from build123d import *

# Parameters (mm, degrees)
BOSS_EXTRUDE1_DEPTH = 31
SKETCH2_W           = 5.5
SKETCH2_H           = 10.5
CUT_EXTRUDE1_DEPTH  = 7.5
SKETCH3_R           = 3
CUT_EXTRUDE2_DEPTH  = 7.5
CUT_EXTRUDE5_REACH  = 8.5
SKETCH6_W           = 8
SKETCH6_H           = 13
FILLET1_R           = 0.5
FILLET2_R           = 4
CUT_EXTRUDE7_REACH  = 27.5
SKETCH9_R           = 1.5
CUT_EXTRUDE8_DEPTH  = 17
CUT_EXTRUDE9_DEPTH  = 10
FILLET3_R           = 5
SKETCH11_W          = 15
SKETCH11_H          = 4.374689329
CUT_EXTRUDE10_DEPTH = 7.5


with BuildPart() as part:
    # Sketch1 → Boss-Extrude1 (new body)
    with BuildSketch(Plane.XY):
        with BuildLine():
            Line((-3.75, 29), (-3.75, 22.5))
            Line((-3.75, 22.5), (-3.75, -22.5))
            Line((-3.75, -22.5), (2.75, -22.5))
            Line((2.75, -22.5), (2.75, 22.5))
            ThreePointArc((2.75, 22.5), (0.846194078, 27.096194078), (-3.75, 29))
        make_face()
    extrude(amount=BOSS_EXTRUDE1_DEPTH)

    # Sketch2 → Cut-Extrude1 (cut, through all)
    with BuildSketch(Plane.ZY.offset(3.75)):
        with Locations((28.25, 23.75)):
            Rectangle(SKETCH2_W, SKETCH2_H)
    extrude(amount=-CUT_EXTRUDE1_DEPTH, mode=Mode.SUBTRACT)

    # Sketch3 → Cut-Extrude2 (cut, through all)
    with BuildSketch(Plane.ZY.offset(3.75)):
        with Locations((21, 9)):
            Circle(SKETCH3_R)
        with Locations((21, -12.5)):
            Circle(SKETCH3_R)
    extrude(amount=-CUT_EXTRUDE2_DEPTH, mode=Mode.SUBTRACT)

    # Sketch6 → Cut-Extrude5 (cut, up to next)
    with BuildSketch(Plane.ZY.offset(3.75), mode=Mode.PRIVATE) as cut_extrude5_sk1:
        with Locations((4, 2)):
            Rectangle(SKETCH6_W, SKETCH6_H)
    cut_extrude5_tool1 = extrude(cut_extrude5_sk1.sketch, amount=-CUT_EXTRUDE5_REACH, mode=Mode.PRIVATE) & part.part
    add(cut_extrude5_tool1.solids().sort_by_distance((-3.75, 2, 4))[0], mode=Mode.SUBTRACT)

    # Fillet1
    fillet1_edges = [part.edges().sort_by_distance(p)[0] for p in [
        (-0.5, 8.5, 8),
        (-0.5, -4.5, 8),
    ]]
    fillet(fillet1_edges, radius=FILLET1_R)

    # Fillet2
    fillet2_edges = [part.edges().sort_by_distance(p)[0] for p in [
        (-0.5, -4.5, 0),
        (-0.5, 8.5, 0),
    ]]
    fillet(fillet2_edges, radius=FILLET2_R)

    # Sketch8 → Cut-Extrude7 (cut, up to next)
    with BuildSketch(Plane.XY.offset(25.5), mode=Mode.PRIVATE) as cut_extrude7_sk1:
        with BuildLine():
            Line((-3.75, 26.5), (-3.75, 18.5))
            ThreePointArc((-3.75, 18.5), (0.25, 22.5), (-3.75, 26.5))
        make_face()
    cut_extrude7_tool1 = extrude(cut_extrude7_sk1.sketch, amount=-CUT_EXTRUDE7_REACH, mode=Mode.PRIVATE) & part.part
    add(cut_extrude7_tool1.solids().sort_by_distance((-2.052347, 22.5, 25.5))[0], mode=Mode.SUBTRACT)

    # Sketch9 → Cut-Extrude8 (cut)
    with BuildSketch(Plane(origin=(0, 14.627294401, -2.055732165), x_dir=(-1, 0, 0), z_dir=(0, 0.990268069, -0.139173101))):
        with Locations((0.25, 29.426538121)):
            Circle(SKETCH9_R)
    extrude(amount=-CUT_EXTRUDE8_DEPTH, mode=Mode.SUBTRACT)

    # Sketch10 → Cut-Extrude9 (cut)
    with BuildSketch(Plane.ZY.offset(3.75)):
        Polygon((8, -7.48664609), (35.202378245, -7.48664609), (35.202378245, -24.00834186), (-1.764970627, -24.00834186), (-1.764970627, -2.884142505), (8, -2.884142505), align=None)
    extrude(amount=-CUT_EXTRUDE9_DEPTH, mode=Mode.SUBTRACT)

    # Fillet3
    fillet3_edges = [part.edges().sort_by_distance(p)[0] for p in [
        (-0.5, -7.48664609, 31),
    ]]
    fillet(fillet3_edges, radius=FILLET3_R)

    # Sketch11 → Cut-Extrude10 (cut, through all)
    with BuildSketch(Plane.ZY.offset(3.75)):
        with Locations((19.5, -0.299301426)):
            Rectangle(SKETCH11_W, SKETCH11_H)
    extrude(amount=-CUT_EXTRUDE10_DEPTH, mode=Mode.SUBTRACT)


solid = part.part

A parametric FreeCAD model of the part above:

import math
import FreeCAD as App
import Part
import Sketcher
Q = App.Units.Quantity


def edges_at(feature, points):
    """Names of the edges that pass closest to the given points."""
    edges = feature.Shape.Edges
    near = lambda p: min(range(len(edges)), key=lambda i: edges[i].distToShape(Part.Vertex(*p))[0])
    return sorted({f"Edge{near(p) + 1}" for p in points})

doc = App.newDocument("Part")
body = doc.addObject("PartDesign::Body", "Body")

sketch1 = body.newObject("Sketcher::SketchObject", "Sketch")
sketch1.AttachmentSupport = (doc.getObject("XY_Plane"), [""])
sketch1.MapMode = "FlatFace"
sketch1.addGeometry(Part.LineSegment(App.Vector(-3.75, 29, 0), App.Vector(-3.75, -22.5, 0)), False)
sketch1.addGeometry(Part.LineSegment(App.Vector(-3.75, -22.5, 0), App.Vector(2.75, -22.5, 0)), False)
sketch1.addGeometry(Part.LineSegment(App.Vector(2.75, -22.5, 0), App.Vector(2.75, 22.5, 0)), False)
sketch1.addGeometry(Part.ArcOfCircle(Part.Circle(App.Vector(-3.75, 22.5, 0), App.Vector(0, 0, 1), 6.5), math.radians(0), math.radians(90)), False)
sketch1.addConstraint(Sketcher.Constraint("Coincident", 0, 2, 1, 1))
sketch1.addConstraint(Sketcher.Constraint("Coincident", 1, 2, 2, 1))
sketch1.addConstraint(Sketcher.Constraint("Tangent", 2, 2, 3, 1))
sketch1.addConstraint(Sketcher.Constraint("Coincident", 3, 2, 0, 1))
sketch1.addConstraint(Sketcher.Constraint("Vertical", 0))
sketch1.addConstraint(Sketcher.Constraint("Horizontal", 1))
sketch1.addConstraint(Sketcher.Constraint("Vertical", 2))
sketch1.addConstraint(Sketcher.Constraint("Vertical", 3, 3, 0, 2))
sketch1.addConstraint(Sketcher.Constraint("Radius", 3, Q("6.5 mm")))
sketch1.addConstraint(Sketcher.Constraint("DistanceY", 2, 1, 2, 2, Q("45 mm")))
sketch1.addConstraint(Sketcher.Constraint("DistanceY", -1, 1, 3, 2, Q("29 mm")))
sketch1.addConstraint(Sketcher.Constraint("DistanceX", 3, 3, -1, 1, Q("3.75 mm")))
pad1 = body.newObject("PartDesign::Pad", "Pad")
pad1.Profile = sketch1
pad1.Length = 31

sketch2 = body.newObject("Sketcher::SketchObject", "Sketch001")
sketch2.AttachmentSupport = (doc.getObject("YZ_Plane"), [""])
sketch2.MapMode = "FlatFace"
sketch2.AttachmentOffset = App.Placement(App.Vector(0, 0, -3.75), App.Rotation())
sketch2.addGeometry(Part.LineSegment(App.Vector(29, 25.5, 0), App.Vector(18.5, 25.5, 0)), False)
sketch2.addGeometry(Part.LineSegment(App.Vector(18.5, 25.5, 0), App.Vector(18.5, 31, 0)), False)
sketch2.addGeometry(Part.LineSegment(App.Vector(18.5, 31, 0), App.Vector(29, 31, 0)), False)
sketch2.addGeometry(Part.LineSegment(App.Vector(29, 31, 0), App.Vector(29, 25.5, 0)), False)
sketch2.addConstraint(Sketcher.Constraint("Coincident", 0, 2, 1, 1))
sketch2.addConstraint(Sketcher.Constraint("Coincident", 1, 2, 2, 1))
sketch2.addConstraint(Sketcher.Constraint("Coincident", 2, 2, 3, 1))
sketch2.addConstraint(Sketcher.Constraint("Coincident", 3, 2, 0, 1))
sketch2.addConstraint(Sketcher.Constraint("Horizontal", 0))
sketch2.addConstraint(Sketcher.Constraint("Vertical", 1))
sketch2.addConstraint(Sketcher.Constraint("Horizontal", 2))
sketch2.addConstraint(Sketcher.Constraint("Vertical", 3))
sketch2.addConstraint(Sketcher.Constraint("DistanceX", 0, 2, 0, 1, Q("10.5 mm")))
sketch2.addConstraint(Sketcher.Constraint("DistanceY", 1, 1, 1, 2, Q("5.5 mm")))
sketch2.addConstraint(Sketcher.Constraint("DistanceY", -1, 1, 1, 2, Q("31 mm")))
sketch2.addConstraint(Sketcher.Constraint("DistanceX", -1, 1, 2, 2, Q("29 mm")))
pocket1 = body.newObject("PartDesign::Pocket", "Pocket")
pocket1.Profile = sketch2
pocket1.Type = "ThroughAll"
pocket1.Reversed = True

sketch3 = body.newObject("Sketcher::SketchObject", "Sketch002")
sketch3.AttachmentSupport = (doc.getObject("YZ_Plane"), [""])
sketch3.MapMode = "FlatFace"
sketch3.AttachmentOffset = App.Placement(App.Vector(0, 0, -3.75), App.Rotation())
sketch3.addGeometry(Part.Circle(App.Vector(9, 21, 0), App.Vector(0, 0, 1), 3), False)
sketch3.addGeometry(Part.Circle(App.Vector(-12.5, 21, 0), App.Vector(0, 0, 1), 3), False)
sketch3.addConstraint(Sketcher.Constraint("Equal", 0, 1))
sketch3.addConstraint(Sketcher.Constraint("Horizontal", 0, 3, 1, 3))
sketch3.addConstraint(Sketcher.Constraint("Diameter", 0, Q("6 mm")))
sketch3.addConstraint(Sketcher.Constraint("DistanceX", -1, 1, 0, 3, Q("9 mm")))
sketch3.addConstraint(Sketcher.Constraint("DistanceY", -1, 1, 0, 3, Q("21 mm")))
sketch3.addConstraint(Sketcher.Constraint("DistanceX", 1, 3, -1, 1, Q("12.5 mm")))
pocket2 = body.newObject("PartDesign::Pocket", "Pocket001")
pocket2.Profile = sketch3
pocket2.Type = "ThroughAll"
pocket2.Reversed = True

sketch4 = body.newObject("Sketcher::SketchObject", "Sketch003")
sketch4.AttachmentSupport = (doc.getObject("YZ_Plane"), [""])
sketch4.MapMode = "FlatFace"
sketch4.AttachmentOffset = App.Placement(App.Vector(0, 0, -3.75), App.Rotation())
sketch4.addGeometry(Part.LineSegment(App.Vector(8.5, 0, 0), App.Vector(-4.5, 0, 0)), False)
sketch4.addGeometry(Part.LineSegment(App.Vector(-4.5, 0, 0), App.Vector(-4.5, 8, 0)), False)
sketch4.addGeometry(Part.LineSegment(App.Vector(-4.5, 8, 0), App.Vector(8.5, 8, 0)), False)
sketch4.addGeometry(Part.LineSegment(App.Vector(8.5, 8, 0), App.Vector(8.5, 0, 0)), False)
sketch4.addConstraint(Sketcher.Constraint("Coincident", 0, 2, 1, 1))
sketch4.addConstraint(Sketcher.Constraint("Coincident", 1, 2, 2, 1))
sketch4.addConstraint(Sketcher.Constraint("Coincident", 2, 2, 3, 1))
sketch4.addConstraint(Sketcher.Constraint("Coincident", 3, 2, 0, 1))
sketch4.addConstraint(Sketcher.Constraint("Horizontal", 0))
sketch4.addConstraint(Sketcher.Constraint("Vertical", 1))
sketch4.addConstraint(Sketcher.Constraint("Horizontal", 2))
sketch4.addConstraint(Sketcher.Constraint("Vertical", 3))
sketch4.addConstraint(Sketcher.Constraint("PointOnObject", 0, 2, -1))
sketch4.addConstraint(Sketcher.Constraint("DistanceX", 0, 2, 0, 1, Q("13 mm")))
sketch4.addConstraint(Sketcher.Constraint("DistanceY", 1, 1, 1, 2, Q("8 mm")))
sketch4.addConstraint(Sketcher.Constraint("DistanceX", 0, 2, -1, 1, Q("4.5 mm")))
pocket3 = body.newObject("PartDesign::Pocket", "Pocket002")
pocket3.Profile = sketch4
pocket3.Type = "UpToFirst"
pocket3.Reversed = True
doc.recompute()

fillet = body.newObject("PartDesign::Fillet", "Fillet")
fillet.Base = (pocket3, edges_at(pocket3, [(-0.5, 8.5, 8), (-0.5, -4.5, 8)]))
fillet.Radius = 0.5
doc.recompute()

fillet2 = body.newObject("PartDesign::Fillet", "Fillet001")
fillet2.Base = (fillet, edges_at(fillet, [(-0.5, -4.5, 0), (-0.5, 8.5, 0)]))
fillet2.Radius = 4

sketch5 = body.newObject("Sketcher::SketchObject", "Sketch004")
sketch5.AttachmentSupport = (doc.getObject("XY_Plane"), [""])
sketch5.MapMode = "FlatFace"
sketch5.AttachmentOffset = App.Placement(App.Vector(0, 0, 25.5), App.Rotation())
sketch5.addGeometry(Part.LineSegment(App.Vector(-3.75, 26.5, 0), App.Vector(-3.75, 18.5, 0)), False)
sketch5.addGeometry(Part.ArcOfCircle(Part.Circle(App.Vector(-3.75, 22.5, 0), App.Vector(0, 0, 1), 4), math.radians(-90), math.radians(90)), False)
sketch5.addConstraint(Sketcher.Constraint("Coincident", 0, 1, 1, 2))
sketch5.addConstraint(Sketcher.Constraint("Coincident", 1, 1, 0, 2))
sketch5.addConstraint(Sketcher.Constraint("Vertical", 0))
sketch5.addConstraint(Sketcher.Constraint("Vertical", 1, 3, 0, 1))
sketch5.addConstraint(Sketcher.Constraint("Radius", 1, Q("4 mm")))
sketch5.addConstraint(Sketcher.Constraint("DistanceY", -1, 1, 1, 3, Q("22.5 mm")))
sketch5.addConstraint(Sketcher.Constraint("DistanceX", 1, 3, -1, 1, Q("3.75 mm")))
pocket4 = body.newObject("PartDesign::Pocket", "Pocket003")
pocket4.Profile = sketch5
pocket4.Type = "UpToFirst"

sketch6 = body.newObject("Sketcher::SketchObject", "Sketch005")
sketch6.Placement = App.Placement(App.Vector(0, 14.627294, -2.055732), App.Rotation(App.Vector(-1, 0, 0), App.Vector(0, 0.139173101, 0.990268069), App.Vector(0, 0.990268069, -0.139173101), "ZXY"))
sketch6.addGeometry(Part.Circle(App.Vector(0.25, 29.426538, 0), App.Vector(0, 0, 1), 1.5), False)
sketch6.addConstraint(Sketcher.Constraint("Diameter", 0, Q("3 mm")))
sketch6.addConstraint(Sketcher.Constraint("DistanceX", -1, 1, 0, 3, Q("0.25 mm")))
sketch6.addConstraint(Sketcher.Constraint("DistanceY", -1, 1, 0, 3, Q("29.426538 mm")))
pocket5 = body.newObject("PartDesign::Pocket", "Pocket004")
pocket5.Profile = sketch6
pocket5.Length = 17

sketch7 = body.newObject("Sketcher::SketchObject", "Sketch006")
sketch7.AttachmentSupport = (doc.getObject("YZ_Plane"), [""])
sketch7.MapMode = "FlatFace"
sketch7.AttachmentOffset = App.Placement(App.Vector(0, 0, -3.75), App.Rotation())
sketch7.addGeometry(Part.LineSegment(App.Vector(-7.486646, 35.202378, 0), App.Vector(-7.486646, 8, 0)), False)
sketch7.addGeometry(Part.LineSegment(App.Vector(-7.486646, 8, 0), App.Vector(-2.884143, 8, 0)), False)
sketch7.addGeometry(Part.LineSegment(App.Vector(-2.884143, 8, 0), App.Vector(-2.884143, -1.764971, 0)), False)
sketch7.addGeometry(Part.LineSegment(App.Vector(-2.884143, -1.764971, 0), App.Vector(-24.008342, -1.764971, 0)), False)
sketch7.addGeometry(Part.LineSegment(App.Vector(-24.008342, -1.764971, 0), App.Vector(-24.008342, 35.202378, 0)), False)
sketch7.addGeometry(Part.LineSegment(App.Vector(-24.008342, 35.202378, 0), App.Vector(-7.486646, 35.202378, 0)), False)
sketch7.addConstraint(Sketcher.Constraint("Coincident", 0, 2, 1, 1))
sketch7.addConstraint(Sketcher.Constraint("Coincident", 1, 2, 2, 1))
sketch7.addConstraint(Sketcher.Constraint("Coincident", 2, 2, 3, 1))
sketch7.addConstraint(Sketcher.Constraint("Coincident", 3, 2, 4, 1))
sketch7.addConstraint(Sketcher.Constraint("Coincident", 4, 2, 5, 1))
sketch7.addConstraint(Sketcher.Constraint("Coincident", 5, 2, 0, 1))
sketch7.addConstraint(Sketcher.Constraint("Vertical", 0))
sketch7.addConstraint(Sketcher.Constraint("Horizontal", 1))
sketch7.addConstraint(Sketcher.Constraint("Vertical", 2))
sketch7.addConstraint(Sketcher.Constraint("Horizontal", 3))
sketch7.addConstraint(Sketcher.Constraint("Vertical", 4))
sketch7.addConstraint(Sketcher.Constraint("Horizontal", 5))
sketch7.addConstraint(Sketcher.Constraint("DistanceY", -1, 1, 0, 2, Q("8 mm")))
sketch7.addConstraint(Sketcher.Constraint("DistanceX", 3, 2, 3, 1, Q("21.124199 mm")))
sketch7.addConstraint(Sketcher.Constraint("DistanceY", 0, 2, 0, 1, Q("27.202378 mm")))
sketch7.addConstraint(Sketcher.Constraint("DistanceY", 2, 2, 2, 1, Q("9.764971 mm")))
sketch7.addConstraint(Sketcher.Constraint("DistanceX", 1, 1, 1, 2, Q("4.602504 mm")))
sketch7.addConstraint(Sketcher.Constraint("DistanceX", 3, 2, -1, 1, Q("24.008342 mm")))
pocket6 = body.newObject("PartDesign::Pocket", "Pocket005")
pocket6.Profile = sketch7
pocket6.Length = 10
pocket6.Reversed = True
doc.recompute()

fillet3 = body.newObject("PartDesign::Fillet", "Fillet002")
fillet3.Base = (pocket6, edges_at(pocket6, [(-0.5, -7.487, 31)]))
fillet3.Radius = 5

sketch8 = body.newObject("Sketcher::SketchObject", "Sketch007")
sketch8.AttachmentSupport = (doc.getObject("YZ_Plane"), [""])
sketch8.MapMode = "FlatFace"
sketch8.AttachmentOffset = App.Placement(App.Vector(0, 0, -3.75), App.Rotation())
sketch8.addGeometry(Part.LineSegment(App.Vector(1.888043, 12, 0), App.Vector(-2.486646, 12, 0)), False)
sketch8.addGeometry(Part.LineSegment(App.Vector(-2.486646, 12, 0), App.Vector(-2.486646, 27, 0)), False)
sketch8.addGeometry(Part.LineSegment(App.Vector(-2.486646, 27, 0), App.Vector(1.888043, 27, 0)), False)
sketch8.addGeometry(Part.LineSegment(App.Vector(1.888043, 27, 0), App.Vector(1.888043, 12, 0)), False)
sketch8.addConstraint(Sketcher.Constraint("Coincident", 0, 2, 1, 1))
sketch8.addConstraint(Sketcher.Constraint("Coincident", 1, 2, 2, 1))
sketch8.addConstraint(Sketcher.Constraint("Coincident", 2, 2, 3, 1))
sketch8.addConstraint(Sketcher.Constraint("Coincident", 3, 2, 0, 1))
sketch8.addConstraint(Sketcher.Constraint("Horizontal", 0))
sketch8.addConstraint(Sketcher.Constraint("Vertical", 1))
sketch8.addConstraint(Sketcher.Constraint("Horizontal", 2))
sketch8.addConstraint(Sketcher.Constraint("Vertical", 3))
sketch8.addConstraint(Sketcher.Constraint("DistanceY", 1, 1, 1, 2, Q("15 mm")))
sketch8.addConstraint(Sketcher.Constraint("DistanceY", -1, 1, 0, 2, Q("12 mm")))
sketch8.addConstraint(Sketcher.Constraint("DistanceX", 0, 2, 0, 1, Q("4.374689 mm")))
sketch8.addConstraint(Sketcher.Constraint("DistanceX", 0, 2, -1, 1, Q("2.486646 mm")))
pocket7 = body.newObject("PartDesign::Pocket", "Pocket006")
pocket7.Profile = sketch8
pocket7.Type = "ThroughAll"
pocket7.Reversed = True

doc.recompute()
